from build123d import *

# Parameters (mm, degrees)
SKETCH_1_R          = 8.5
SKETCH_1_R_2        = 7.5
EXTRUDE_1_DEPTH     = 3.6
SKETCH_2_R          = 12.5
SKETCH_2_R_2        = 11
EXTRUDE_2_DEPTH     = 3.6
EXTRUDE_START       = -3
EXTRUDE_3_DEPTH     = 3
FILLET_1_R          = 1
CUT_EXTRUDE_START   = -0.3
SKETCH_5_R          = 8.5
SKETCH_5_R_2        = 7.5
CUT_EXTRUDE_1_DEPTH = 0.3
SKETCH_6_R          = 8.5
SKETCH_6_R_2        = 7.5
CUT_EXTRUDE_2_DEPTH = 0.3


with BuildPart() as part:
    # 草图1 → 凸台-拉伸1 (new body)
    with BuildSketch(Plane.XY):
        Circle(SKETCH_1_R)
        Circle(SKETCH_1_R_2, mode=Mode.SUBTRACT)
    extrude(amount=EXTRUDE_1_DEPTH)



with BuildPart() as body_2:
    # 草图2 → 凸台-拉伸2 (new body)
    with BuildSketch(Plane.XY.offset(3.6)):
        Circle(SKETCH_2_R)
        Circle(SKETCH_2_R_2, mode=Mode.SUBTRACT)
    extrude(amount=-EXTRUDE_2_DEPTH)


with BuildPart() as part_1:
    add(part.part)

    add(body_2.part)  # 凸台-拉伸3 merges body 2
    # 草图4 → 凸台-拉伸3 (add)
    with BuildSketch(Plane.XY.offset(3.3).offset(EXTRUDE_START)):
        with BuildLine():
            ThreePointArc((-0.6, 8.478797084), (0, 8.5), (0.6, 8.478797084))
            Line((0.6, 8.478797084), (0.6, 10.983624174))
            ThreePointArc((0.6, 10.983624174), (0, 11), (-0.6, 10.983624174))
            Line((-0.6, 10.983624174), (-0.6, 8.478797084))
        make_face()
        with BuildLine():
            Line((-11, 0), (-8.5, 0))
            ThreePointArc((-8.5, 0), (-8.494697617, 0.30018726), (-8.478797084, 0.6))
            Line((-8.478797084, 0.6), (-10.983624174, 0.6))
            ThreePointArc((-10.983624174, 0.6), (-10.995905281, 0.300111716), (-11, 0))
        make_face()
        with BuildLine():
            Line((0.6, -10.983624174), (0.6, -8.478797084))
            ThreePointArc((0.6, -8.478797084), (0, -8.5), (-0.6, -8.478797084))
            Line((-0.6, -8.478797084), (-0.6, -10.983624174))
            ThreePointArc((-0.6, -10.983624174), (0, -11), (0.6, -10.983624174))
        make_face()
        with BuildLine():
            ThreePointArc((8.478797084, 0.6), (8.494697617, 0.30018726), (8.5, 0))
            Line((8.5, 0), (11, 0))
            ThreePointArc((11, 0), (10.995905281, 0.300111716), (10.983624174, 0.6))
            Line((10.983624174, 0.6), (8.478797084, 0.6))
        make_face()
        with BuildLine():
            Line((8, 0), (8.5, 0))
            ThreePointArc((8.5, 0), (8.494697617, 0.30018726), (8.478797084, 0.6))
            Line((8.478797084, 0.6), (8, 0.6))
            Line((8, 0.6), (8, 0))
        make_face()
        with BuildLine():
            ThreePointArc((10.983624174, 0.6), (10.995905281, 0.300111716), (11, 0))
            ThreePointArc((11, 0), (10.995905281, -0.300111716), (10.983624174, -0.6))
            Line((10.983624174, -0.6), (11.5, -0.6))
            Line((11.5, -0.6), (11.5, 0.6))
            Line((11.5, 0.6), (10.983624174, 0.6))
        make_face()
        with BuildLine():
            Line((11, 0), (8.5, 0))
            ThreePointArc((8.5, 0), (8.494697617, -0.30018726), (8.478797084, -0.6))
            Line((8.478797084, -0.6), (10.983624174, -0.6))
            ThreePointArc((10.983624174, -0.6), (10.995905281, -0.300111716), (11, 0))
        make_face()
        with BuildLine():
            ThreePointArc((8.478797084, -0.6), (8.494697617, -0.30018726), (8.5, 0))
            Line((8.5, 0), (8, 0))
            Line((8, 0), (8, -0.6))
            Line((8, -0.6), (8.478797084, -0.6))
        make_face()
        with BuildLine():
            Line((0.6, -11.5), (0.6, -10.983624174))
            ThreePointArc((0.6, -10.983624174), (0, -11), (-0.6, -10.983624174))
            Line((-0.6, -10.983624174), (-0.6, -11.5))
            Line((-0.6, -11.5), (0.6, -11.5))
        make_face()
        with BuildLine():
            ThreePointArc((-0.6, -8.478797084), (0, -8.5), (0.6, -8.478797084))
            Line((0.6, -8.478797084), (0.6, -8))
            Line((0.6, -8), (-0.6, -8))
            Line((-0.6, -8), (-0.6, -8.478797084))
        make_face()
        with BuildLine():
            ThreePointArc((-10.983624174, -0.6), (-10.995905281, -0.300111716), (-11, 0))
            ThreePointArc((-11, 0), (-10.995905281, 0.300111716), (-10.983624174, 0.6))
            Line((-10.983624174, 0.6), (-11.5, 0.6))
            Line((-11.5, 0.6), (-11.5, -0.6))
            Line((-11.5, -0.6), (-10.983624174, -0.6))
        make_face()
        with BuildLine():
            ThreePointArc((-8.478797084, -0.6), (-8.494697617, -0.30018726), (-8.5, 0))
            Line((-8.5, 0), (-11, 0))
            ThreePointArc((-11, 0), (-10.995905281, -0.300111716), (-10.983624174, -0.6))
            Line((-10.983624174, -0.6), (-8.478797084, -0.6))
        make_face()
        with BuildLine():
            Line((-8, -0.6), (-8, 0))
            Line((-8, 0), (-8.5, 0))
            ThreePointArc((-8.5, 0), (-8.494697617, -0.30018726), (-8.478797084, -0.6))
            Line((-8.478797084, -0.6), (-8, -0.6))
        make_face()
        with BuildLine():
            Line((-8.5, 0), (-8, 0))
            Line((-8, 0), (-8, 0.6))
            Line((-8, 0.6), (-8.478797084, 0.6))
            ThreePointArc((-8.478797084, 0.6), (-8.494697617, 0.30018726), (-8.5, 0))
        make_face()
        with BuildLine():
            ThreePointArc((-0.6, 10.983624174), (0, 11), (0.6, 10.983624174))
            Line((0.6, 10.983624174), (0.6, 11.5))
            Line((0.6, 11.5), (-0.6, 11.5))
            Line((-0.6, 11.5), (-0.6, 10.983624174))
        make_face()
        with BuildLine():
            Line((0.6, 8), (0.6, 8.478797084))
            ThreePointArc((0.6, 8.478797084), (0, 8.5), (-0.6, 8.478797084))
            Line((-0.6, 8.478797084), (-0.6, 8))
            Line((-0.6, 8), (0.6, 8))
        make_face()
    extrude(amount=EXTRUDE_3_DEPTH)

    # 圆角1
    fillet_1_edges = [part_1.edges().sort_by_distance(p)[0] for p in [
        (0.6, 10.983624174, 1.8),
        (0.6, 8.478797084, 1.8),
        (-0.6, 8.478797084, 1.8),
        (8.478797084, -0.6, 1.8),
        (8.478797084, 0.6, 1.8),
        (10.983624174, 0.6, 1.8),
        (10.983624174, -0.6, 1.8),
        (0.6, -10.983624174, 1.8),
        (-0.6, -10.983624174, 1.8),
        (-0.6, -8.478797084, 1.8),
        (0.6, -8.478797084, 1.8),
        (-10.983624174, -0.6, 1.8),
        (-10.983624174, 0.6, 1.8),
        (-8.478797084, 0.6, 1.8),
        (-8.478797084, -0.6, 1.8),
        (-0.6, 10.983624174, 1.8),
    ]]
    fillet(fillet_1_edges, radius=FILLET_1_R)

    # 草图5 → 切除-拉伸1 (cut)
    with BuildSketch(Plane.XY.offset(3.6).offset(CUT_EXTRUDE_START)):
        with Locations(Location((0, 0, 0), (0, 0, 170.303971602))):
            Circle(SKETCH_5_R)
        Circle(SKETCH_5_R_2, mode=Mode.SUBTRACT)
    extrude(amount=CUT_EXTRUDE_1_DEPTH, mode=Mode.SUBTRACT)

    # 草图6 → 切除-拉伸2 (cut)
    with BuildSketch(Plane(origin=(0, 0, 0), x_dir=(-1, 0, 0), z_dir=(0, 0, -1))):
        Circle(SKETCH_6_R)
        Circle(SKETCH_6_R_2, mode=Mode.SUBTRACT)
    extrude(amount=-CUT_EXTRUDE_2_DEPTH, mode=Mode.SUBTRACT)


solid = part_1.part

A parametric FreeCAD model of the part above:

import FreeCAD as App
import Part
import Sketcher
Q = App.Units.Quantity


def edges_at(feature, points):
    """Names of the edges that pass closest to the given points."""
    edges = feature.Shape.Edges
    near = lambda p: min(range(len(edges)), key=lambda i: edges[i].distToShape(Part.Vertex(*p))[0])
    return sorted({f"Edge{near(p) + 1}" for p in points})


def add_polygon(sketch, points):
    """Adds a closed chain of lines whose ends are joined by coincident constraints."""
    first, n = sketch.GeometryCount, len(points)
    for a, b in zip(points, points[1:] + points[:1]):
        sketch.addGeometry(Part.LineSegment(App.Vector(*a, 0), App.Vector(*b, 0)), False)
    for i in range(n):
        sketch.addConstraint(Sketcher.Constraint("Coincident", first + i, 2, first + (i + 1) % n, 1))

doc = App.newDocument("Part")
params = doc.addObject("Spreadsheet::Sheet", "Params")
for row, (alias, value) in enumerate([
    ("sketch1_diameter", "17 mm"),
    ("sketch1_diameter2", "15 mm"),
    ("pad1_length", "3.6 mm"),
    ("sketch2_diameter", "25 mm"),
    ("sketch2_diameter2", "22 mm"),
    ("pad2_length", "3.6 mm"),
    ("sketch3_width", "1.2 mm"),
    ("sketch3_width2", "3.5 mm"),
    ("pad3_length", "3 mm"),
    ("fillet_radius", "1 mm"),
    ("sketch4_diameter", "17 mm"),
    ("sketch4_diameter2", "15 mm"),
    ("pocket1_length", "0.3 mm"),
    ("sketch5_diameter", "17 mm"),
    ("sketch5_diameter2", "15 mm"),
    ("pocket2_length", "0.3 mm"),
], start=1):
    params.set(f"A{row}", alias)
    params.set(f"B{row}", "=" + value)
    params.setAlias(f"B{row}", alias)

body = doc.addObject("PartDesign::Body", "Body")

# Sketch on XY plane
sketch1 = body.newObject("Sketcher::SketchObject", "Sketch")
sketch1.AttachmentSupport = (doc.getObject("XY_Plane"), [""])
sketch1.MapMode = "FlatFace"
sketch1.addGeometry([
    Part.Circle(App.Vector(0, 0, 0), App.Vector(0, 0, 1), 8),
    Part.Circle(App.Vector(0, 0, 0), App.Vector(0, 0, 1), 8),
], False)
sketch1.addConstraint([
    Sketcher.Constraint("Coincident", 0, 3, -1, 1),
    Sketcher.Constraint("Coincident", 1, 3, -1, 1),
    Sketcher.Constraint("Diameter", 0, Q("17 mm")),
    Sketcher.Constraint("Diameter", 1, Q("15 mm")),
])
sketch1.setExpression("Constraints[2]", "Params.sketch1_diameter")
sketch1.setExpression("Constraints[3]", "Params.sketch1_diameter2")
pad1 = body.newObject("PartDesign::Pad", "Pad")
pad1.Profile = sketch1
pad1.setExpression("Length", "Params.pad1_length")
body2 = doc.addObject("PartDesign::Body", "Body001")

# Sketch on XY plane
sketch2 = body2.newObject("Sketcher::SketchObject", "Sketch001")
sketch2.AttachmentSupport = (doc.getObject("XY_Plane001"), [""])
sketch2.MapMode = "FlatFace"
sketch2.AttachmentOffset = App.Placement(App.Vector(0, 0, 3.6), App.Rotation())
sketch2.addGeometry([
    Part.Circle(App.Vector(0, 0, 0), App.Vector(0, 0, 1), 12),
    Part.Circle(App.Vector(0, 0, 0), App.Vector(0, 0, 1), 11),
], False)
sketch2.addConstraint([
    Sketcher.Constraint("Coincident", 0, 3, -1, 1),
    Sketcher.Constraint("Coincident", 1, 3, -1, 1),
    Sketcher.Constraint("Diameter", 0, Q("25 mm")),
    Sketcher.Constraint("Diameter", 1, Q("22 mm")),
])
sketch2.setExpression("Constraints[2]", "Params.sketch2_diameter")
sketch2.setExpression("Constraints[3]", "Params.sketch2_diameter2")
pad2 = body2.newObject("PartDesign::Pad", "Pad001")
pad2.Profile = sketch2
pad2.setExpression("Length", "Params.pad2_length")
pad2.Reversed = True
body.AllowCompound = True
doc.recompute()

boolean = body.newObject("PartDesign::Boolean", "Boolean")
boolean.Type = "Fuse"
boolean.addObjects([body2])

# Sketch on XY plane
sketch3 = body.newObject("Sketcher::SketchObject", "Sketch002")
sketch3.AttachmentSupport = (doc.getObject("XY_Plane"), [""])
sketch3.MapMode = "FlatFace"
sketch3.AttachmentOffset = App.Placement(App.Vector(0, 0, 0.3), App.Rotation())
add_polygon(sketch3, [(0.6, 11.5), (-0.6, 11.5), (-0.6, 8), (0.6, 8)])  # lines 0-3
add_polygon(sketch3, [(-11.5, 0.6), (-11.5, -0.6), (-8, -0.6), (-8, 0.6)])  # lines 4-7
add_polygon(sketch3, [(-0.6, -11.5), (0.6, -11.5), (0.6, -8), (-0.6, -8)])  # lines 8-11
add_polygon(sketch3, [(8, 0.6), (8, -0.6), (11.5, -0.6), (11.5, 0.6)])  # lines 12-15
sketch3.addConstraint([
    Sketcher.Constraint("Horizontal", 0),
    Sketcher.Constraint("Vertical", 1),
    Sketcher.Constraint("Horizontal", 2),
    Sketcher.Constraint("Vertical", 3),
    Sketcher.Constraint("Vertical", 4),
    Sketcher.Constraint("Horizontal", 5),
    Sketcher.Constraint("Vertical", 6),
    Sketcher.Constraint("Horizontal", 7),
    Sketcher.Constraint("Horizontal", 8),
    Sketcher.Constraint("Vertical", 9),
    Sketcher.Constraint("Horizontal", 10),
    Sketcher.Constraint("Vertical", 11),
    Sketcher.Constraint("Vertical", 12),
    Sketcher.Constraint("Horizontal", 13),
    Sketcher.Constraint("Vertical", 14),
    Sketcher.Constraint("Horizontal", 15),
    Sketcher.Constraint("Symmetric", 0, 2, 8, 2, -1, 1),
    Sketcher.Constraint("Symmetric", 2, 2, 10, 2, -1, 1),
    Sketcher.Constraint("Symmetric", 6, 2, 12, 2, -1, 1),
    Sketcher.Constraint("Symmetric", 4, 2, 14, 2, -1, 1),
    Sketcher.Constraint("Horizontal", 5, 2, 12, 2),
    Sketcher.Constraint("Vertical", 3, 2, 8, 2),
    Sketcher.Constraint("Equal", 15, 1),
    Sketcher.Constraint("Equal", 10, 4),
    Sketcher.Constraint("DistanceX", 0, 2, 0, 1, Q("1.2 mm")),
    Sketcher.Constraint("DistanceX", 5, 1, 5, 2, Q("3.5 mm")),
    Sketcher.Constraint("DistanceY", -1, 1, 1, 2, Q("8 mm")),
    Sketcher.Constraint("DistanceX", 5, 2, -1, 1, Q("8 mm")),
])
sketch3.setExpression("Constraints[40]", "Params.sketch3_width")
sketch3.setExpression("Constraints[41]", "Params.sketch3_width2")
pad3 = body.newObject("PartDesign::Pad", "Pad002")
pad3.Profile = sketch3
pad3.setExpression("Length", "Params.pad3_length")
doc.recompute()

fillet = body.newObject("PartDesign::Fillet", "Fillet")
fillet.Base = (pad3, edges_at(pad3, [
    (0.6, 10.984, 1.8),
    (0.6, 8.479, 1.8),
    (-0.6, 8.479, 1.8),
    (8.479, -0.6, 1.8),
    (8.479, 0.6, 1.8),
    (10.984, 0.6, 1.8),
    (10.984, -0.6, 1.8),
    (0.6, -10.984, 1.8),
    (-0.6, -10.984, 1.8),
    (-0.6, -8.479, 1.8),
    (0.6, -8.479, 1.8),
    (-10.984, -0.6, 1.8),
    (-10.984, 0.6, 1.8),
    (-8.479, 0.6, 1.8),
    (-8.479, -0.6, 1.8),
    (-0.6, 10.984, 1.8),
]))
fillet.setExpression("Radius", "Params.fillet_radius")

# Sketch on XY plane
sketch4 = body.newObject("Sketcher::SketchObject", "Sketch003")
sketch4.AttachmentSupport = (doc.getObject("XY_Plane"), [""])
sketch4.MapMode = "FlatFace"
sketch4.AttachmentOffset = App.Placement(App.Vector(0, 0, 3.3), App.Rotation())
sketch4.addGeometry([
    Part.Circle(App.Vector(0, 0, 0), App.Vector(0, 0, 1), 8),
    Part.Circle(App.Vector(0, 0, 0), App.Vector(0, 0, 1), 8),
], False)
sketch4.addConstraint([
    Sketcher.Constraint("Coincident", 0, 3, -1, 1),
    Sketcher.Constraint("Coincident", 1, 3, -1, 1),
    Sketcher.Constraint("Diameter", 0, Q("17 mm")),
    Sketcher.Constraint("Diameter", 1, Q("15 mm")),
])
sketch4.setExpression("Constraints[2]", "Params.sketch4_diameter")
sketch4.setExpression("Constraints[3]", "Params.sketch4_diameter2")
pocket1 = body.newObject("PartDesign::Pocket", "Pocket")
pocket1.Profile = sketch4
pocket1.setExpression("Length", "Params.pocket1_length")
pocket1.Reversed = True

# Sketch on XY plane
sketch5 = body.newObject("Sketcher::SketchObject", "Sketch004")
sketch5.AttachmentSupport = (doc.getObject("XY_Plane"), [""])
sketch5.MapMode = "FlatFace"
sketch5.addGeometry([
    Part.Circle(App.Vector(0, 0, 0), App.Vector(0, 0, 1), 8),
    Part.Circle(App.Vector(0, 0, 0), App.Vector(0, 0, 1), 8),
], False)
sketch5.addConstraint([
    Sketcher.Constraint("Coincident", 0, 3, -1, 1),
    Sketcher.Constraint("Coincident", 1, 3, -1, 1),
    Sketcher.Constraint("Diameter", 0, Q("17 mm")),
    Sketcher.Constraint("Diameter", 1, Q("15 mm")),
])
sketch5.setExpression("Constraints[2]", "Params.sketch5_diameter")
sketch5.setExpression("Constraints[3]", "Params.sketch5_diameter2")
pocket2 = body.newObject("PartDesign::Pocket", "Pocket001")
pocket2.Profile = sketch5
pocket2.setExpression("Length", "Params.pocket2_length")
pocket2.Reversed = True

doc.recompute()
